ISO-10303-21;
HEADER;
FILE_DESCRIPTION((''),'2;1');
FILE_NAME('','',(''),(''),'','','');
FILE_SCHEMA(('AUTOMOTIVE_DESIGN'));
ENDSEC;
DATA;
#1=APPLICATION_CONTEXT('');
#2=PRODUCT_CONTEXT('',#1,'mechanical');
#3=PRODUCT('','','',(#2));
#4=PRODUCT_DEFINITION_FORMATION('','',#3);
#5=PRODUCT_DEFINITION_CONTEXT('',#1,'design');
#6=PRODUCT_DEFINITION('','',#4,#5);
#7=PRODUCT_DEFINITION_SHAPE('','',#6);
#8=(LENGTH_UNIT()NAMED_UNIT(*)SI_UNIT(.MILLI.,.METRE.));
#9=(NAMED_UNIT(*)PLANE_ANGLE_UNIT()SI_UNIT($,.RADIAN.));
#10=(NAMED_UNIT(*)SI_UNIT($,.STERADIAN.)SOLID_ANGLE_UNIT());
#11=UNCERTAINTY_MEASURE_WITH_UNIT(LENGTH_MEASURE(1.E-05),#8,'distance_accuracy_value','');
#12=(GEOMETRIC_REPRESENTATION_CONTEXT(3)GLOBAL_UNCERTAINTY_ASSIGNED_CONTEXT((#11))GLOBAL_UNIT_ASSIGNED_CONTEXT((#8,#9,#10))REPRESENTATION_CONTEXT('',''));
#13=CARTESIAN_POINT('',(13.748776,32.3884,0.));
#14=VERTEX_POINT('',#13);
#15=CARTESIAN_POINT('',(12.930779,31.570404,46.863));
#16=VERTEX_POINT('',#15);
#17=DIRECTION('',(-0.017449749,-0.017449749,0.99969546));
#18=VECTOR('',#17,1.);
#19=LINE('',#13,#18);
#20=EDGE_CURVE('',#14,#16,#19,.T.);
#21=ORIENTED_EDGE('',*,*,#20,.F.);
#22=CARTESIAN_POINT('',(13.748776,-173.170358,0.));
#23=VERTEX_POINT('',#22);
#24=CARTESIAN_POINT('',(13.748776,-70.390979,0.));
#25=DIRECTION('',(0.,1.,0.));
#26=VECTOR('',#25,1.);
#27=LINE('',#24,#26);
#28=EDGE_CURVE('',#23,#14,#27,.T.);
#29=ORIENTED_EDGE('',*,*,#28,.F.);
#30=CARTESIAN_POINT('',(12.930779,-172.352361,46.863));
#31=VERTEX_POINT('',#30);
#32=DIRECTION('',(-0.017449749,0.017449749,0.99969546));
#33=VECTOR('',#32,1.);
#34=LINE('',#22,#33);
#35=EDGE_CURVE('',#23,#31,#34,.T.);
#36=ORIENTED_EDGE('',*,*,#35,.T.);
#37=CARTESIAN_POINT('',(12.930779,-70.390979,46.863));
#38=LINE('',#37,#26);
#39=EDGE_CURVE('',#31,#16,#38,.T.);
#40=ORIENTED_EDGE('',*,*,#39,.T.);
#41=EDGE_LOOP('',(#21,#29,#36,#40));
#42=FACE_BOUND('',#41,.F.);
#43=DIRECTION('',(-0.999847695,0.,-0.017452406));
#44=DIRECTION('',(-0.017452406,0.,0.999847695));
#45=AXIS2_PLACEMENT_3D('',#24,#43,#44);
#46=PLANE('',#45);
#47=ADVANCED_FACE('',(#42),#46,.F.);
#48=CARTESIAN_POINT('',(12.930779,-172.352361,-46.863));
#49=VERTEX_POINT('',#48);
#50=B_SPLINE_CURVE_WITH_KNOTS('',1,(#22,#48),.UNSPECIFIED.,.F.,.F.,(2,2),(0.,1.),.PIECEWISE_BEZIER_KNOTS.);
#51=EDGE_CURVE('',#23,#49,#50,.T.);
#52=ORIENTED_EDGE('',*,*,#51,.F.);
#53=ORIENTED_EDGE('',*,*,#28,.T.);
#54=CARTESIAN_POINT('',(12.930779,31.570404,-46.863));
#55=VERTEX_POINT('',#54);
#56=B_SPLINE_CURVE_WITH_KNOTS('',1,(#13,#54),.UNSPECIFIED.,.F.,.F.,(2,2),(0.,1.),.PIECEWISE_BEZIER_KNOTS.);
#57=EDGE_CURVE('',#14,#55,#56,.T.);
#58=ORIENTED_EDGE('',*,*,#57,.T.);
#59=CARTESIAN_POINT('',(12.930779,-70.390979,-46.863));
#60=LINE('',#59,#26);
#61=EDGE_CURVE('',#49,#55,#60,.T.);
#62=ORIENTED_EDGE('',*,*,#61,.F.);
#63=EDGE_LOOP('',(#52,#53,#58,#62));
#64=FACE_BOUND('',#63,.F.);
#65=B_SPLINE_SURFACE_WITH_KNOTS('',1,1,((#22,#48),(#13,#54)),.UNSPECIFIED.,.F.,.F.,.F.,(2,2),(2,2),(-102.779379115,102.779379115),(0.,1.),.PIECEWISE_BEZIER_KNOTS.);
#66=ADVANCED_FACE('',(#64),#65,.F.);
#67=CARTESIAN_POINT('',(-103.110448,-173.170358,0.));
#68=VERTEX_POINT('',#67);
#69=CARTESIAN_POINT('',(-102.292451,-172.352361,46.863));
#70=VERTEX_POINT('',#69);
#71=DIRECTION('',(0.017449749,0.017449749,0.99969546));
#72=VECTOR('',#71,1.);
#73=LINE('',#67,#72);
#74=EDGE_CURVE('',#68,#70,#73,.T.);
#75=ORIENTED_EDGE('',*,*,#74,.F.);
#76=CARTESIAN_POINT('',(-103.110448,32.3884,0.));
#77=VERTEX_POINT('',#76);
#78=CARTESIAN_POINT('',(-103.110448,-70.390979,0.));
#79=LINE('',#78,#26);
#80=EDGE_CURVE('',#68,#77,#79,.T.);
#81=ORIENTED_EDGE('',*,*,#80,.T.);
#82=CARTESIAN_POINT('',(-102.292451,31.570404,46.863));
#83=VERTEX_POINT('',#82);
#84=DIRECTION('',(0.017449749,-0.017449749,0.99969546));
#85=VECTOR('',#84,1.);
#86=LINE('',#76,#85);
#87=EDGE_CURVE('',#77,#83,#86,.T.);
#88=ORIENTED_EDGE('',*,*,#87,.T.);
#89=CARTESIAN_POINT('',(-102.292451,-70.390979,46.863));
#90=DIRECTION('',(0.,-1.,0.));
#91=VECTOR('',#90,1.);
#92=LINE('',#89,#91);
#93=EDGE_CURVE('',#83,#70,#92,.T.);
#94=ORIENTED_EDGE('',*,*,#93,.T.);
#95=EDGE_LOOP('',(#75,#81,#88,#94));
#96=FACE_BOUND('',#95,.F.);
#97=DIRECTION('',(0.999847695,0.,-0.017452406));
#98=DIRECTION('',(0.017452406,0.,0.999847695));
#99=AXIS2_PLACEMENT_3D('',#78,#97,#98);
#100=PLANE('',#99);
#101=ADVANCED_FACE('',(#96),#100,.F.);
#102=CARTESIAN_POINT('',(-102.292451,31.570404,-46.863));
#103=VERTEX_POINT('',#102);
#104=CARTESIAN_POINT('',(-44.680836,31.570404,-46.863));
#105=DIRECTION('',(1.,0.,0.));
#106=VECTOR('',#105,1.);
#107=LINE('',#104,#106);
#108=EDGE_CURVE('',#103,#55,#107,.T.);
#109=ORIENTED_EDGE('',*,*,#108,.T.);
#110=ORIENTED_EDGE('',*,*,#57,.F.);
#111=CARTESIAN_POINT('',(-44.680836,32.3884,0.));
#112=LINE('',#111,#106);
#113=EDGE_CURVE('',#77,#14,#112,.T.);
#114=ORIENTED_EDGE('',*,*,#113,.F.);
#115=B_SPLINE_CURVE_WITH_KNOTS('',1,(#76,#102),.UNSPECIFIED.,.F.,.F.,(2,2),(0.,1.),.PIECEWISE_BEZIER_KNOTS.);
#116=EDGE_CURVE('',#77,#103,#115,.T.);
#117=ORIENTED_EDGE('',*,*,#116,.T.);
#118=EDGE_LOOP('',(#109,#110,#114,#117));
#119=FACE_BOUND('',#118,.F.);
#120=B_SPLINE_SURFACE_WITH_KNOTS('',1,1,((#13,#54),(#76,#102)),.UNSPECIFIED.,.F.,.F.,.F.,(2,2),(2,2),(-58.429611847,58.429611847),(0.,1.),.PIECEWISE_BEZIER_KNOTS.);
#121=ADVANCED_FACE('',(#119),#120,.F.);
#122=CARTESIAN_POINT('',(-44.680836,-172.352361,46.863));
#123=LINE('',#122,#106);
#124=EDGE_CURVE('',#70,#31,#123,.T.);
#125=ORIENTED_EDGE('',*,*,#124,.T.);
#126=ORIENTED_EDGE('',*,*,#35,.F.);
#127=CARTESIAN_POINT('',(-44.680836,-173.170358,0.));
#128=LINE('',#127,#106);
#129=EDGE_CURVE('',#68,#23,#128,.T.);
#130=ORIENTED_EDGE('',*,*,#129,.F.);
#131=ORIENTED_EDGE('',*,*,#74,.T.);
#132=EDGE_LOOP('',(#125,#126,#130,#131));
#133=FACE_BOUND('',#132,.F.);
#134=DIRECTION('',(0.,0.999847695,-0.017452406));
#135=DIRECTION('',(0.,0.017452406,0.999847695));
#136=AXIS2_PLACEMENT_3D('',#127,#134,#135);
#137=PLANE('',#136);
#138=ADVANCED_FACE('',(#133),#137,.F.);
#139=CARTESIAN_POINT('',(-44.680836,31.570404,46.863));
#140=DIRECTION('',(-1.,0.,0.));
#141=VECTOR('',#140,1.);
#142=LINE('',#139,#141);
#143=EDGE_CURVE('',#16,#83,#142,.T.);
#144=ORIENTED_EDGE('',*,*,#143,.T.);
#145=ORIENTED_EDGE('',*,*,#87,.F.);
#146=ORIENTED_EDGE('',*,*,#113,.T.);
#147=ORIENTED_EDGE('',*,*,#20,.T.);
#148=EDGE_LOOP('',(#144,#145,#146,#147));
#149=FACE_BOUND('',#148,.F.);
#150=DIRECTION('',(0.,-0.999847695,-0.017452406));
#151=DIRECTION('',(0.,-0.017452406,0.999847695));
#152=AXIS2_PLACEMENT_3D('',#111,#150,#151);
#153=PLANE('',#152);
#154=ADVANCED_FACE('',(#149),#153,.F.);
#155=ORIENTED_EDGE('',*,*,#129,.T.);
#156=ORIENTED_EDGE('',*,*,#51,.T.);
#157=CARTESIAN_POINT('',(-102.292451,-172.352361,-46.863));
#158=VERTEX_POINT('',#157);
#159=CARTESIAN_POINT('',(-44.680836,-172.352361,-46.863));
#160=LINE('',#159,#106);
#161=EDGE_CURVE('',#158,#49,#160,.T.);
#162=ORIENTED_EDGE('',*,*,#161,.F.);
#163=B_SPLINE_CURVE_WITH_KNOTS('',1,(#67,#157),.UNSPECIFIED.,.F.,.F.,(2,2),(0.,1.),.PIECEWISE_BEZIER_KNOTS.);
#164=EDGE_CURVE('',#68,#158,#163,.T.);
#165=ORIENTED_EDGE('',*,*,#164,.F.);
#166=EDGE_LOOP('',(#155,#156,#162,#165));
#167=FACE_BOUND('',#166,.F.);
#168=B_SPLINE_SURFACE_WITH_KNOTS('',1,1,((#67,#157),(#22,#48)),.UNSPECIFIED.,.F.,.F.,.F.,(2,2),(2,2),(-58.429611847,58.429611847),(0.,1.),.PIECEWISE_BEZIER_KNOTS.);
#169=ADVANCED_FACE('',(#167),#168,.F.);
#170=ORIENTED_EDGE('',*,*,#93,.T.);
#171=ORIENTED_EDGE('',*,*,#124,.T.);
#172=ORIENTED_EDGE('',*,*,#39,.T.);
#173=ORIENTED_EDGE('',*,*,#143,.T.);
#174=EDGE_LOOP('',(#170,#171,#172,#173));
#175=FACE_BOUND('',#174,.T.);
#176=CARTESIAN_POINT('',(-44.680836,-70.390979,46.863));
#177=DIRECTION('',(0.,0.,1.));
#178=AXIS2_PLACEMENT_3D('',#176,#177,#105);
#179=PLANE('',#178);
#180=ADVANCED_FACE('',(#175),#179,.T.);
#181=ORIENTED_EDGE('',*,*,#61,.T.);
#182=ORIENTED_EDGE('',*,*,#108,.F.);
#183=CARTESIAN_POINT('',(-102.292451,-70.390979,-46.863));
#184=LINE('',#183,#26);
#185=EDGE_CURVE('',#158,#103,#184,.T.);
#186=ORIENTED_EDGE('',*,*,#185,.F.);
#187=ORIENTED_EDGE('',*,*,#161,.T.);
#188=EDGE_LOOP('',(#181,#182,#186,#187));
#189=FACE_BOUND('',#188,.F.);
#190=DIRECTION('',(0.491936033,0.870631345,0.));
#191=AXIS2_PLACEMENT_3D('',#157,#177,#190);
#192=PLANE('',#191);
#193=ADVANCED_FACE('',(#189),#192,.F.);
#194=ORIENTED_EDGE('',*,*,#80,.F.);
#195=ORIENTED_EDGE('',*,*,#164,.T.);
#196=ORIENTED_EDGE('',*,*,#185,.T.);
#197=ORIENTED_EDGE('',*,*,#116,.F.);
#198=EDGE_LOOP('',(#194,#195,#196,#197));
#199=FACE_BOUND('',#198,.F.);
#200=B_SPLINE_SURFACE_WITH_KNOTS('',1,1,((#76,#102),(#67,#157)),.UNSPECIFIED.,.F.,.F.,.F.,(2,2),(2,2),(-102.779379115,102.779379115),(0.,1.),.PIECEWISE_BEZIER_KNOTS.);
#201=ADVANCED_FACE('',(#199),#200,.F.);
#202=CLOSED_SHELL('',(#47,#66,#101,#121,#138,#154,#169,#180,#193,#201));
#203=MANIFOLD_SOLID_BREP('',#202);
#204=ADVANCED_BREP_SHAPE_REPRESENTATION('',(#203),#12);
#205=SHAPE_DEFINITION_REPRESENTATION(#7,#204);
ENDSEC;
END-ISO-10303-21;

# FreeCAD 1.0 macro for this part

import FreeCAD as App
import Part
import Sketcher
from FreeCAD import Vector
Q = App.Units.Quantity


def add_polygon(sketch, points):
    """Adds a closed chain of lines whose ends are joined by coincident constraints."""
    first, n = sketch.GeometryCount, len(points)
    for a, b in zip(points, points[1:] + points[:1]):
        sketch.addGeometry(Part.LineSegment(App.Vector(*a, 0), App.Vector(*b, 0)), False)
    for i in range(n):
        sketch.addConstraint(Sketcher.Constraint("Coincident", first + i, 2, first + (i + 1) % n, 1))

doc = App.newDocument("Part")
params = doc.addObject("Spreadsheet::Sheet", "Params")
for row, (alias, value) in enumerate([
    ("pad1_length", "3.69 in"),
    ("pad1_taper", "-1 deg"),
], start=1):
    params.set(f"A{row}", alias)
    params.set(f"B{row}", "=" + value)
    params.setAlias(f"B{row}", alias)

body = doc.addObject("PartDesign::Body", "Body")

sketch1 = doc.addObject("Sketcher::SketchObject", "Sketch")
body.addObject(sketch1)
sketch1.AttachmentSupport = (doc.XY_Plane, [""])
sketch1.MapMode = "FlatFace"
add_polygon(sketch1, [(-103, 32), (-103, -173), (14, -173), (14, 32)])
sketch1.addConstraint([
    Sketcher.Constraint("Vertical", 0),
    Sketcher.Constraint("Horizontal", 1),
    Sketcher.Constraint("Vertical", 2),
    Sketcher.Constraint("Horizontal", 3),
    Sketcher.Constraint("DistanceY", 0, 2, 0, 1, Q("205.558758 mm")),
    Sketcher.Constraint("DistanceY", -1, 1, 2, 2, Q("32.3884 mm")),
    Sketcher.Constraint("DistanceX", 1, 1, 1, 2, Q("116.859224 mm")),
    Sketcher.Constraint("DistanceX", 0, 2, -1, 1, Q("103.110448 mm")),
])
pad1 = doc.addObject("PartDesign::Pad", "Pad")
body.addObject(pad1)
pad1.Profile = sketch1
pad1.setExpression("Length", "Params.pad1_length")
pad1.Midplane = True
pad1.setExpression("TaperAngle", "Params.pad1_taper")

doc.recompute()
